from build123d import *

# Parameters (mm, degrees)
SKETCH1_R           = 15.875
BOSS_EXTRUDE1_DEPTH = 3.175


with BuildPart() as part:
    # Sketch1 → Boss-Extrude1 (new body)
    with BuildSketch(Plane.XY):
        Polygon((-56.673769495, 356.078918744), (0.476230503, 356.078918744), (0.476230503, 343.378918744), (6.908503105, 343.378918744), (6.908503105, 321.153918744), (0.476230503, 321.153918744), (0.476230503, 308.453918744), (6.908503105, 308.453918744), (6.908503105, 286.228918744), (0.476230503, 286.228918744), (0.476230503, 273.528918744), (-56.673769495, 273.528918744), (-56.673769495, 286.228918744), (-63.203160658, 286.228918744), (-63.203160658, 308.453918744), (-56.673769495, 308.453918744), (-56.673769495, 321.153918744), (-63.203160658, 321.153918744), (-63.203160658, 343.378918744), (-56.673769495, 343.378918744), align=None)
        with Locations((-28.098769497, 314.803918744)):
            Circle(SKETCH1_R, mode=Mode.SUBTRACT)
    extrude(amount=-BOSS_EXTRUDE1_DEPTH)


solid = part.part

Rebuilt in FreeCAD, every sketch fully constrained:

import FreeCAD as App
import Part
import Sketcher
Q = App.Units.Quantity

doc = App.newDocument("Part")
body = doc.addObject("PartDesign::Body", "Body")

# Sketch on XY plane
sketch1 = body.newObject("Sketcher::SketchObject", "Sketch")
sketch1.AttachmentSupport = (doc.getObject("XY_Plane"), [""])
sketch1.MapMode = "FlatFace"
sketch1.addGeometry([
    Part.LineSegment(App.Vector(0, 356, 0), App.Vector(-57, 356, 0)),  # 0
    Part.LineSegment(App.Vector(-57, 356, 0), App.Vector(-57, 343, 0)),  # 1
    Part.LineSegment(App.Vector(-57, 343, 0), App.Vector(-63, 343, 0)),  # 2
    Part.LineSegment(App.Vector(-63, 343, 0), App.Vector(-63, 321, 0)),  # 3
    Part.LineSegment(App.Vector(-63, 321, 0), App.Vector(-57, 321, 0)),  # 4
    Part.LineSegment(App.Vector(-57, 321, 0), App.Vector(-57, 308, 0)),  # 5
    Part.LineSegment(App.Vector(-57, 308, 0), App.Vector(-63, 308, 0)),  # 6
    Part.LineSegment(App.Vector(-63, 308, 0), App.Vector(-63, 286, 0)),  # 7
    Part.LineSegment(App.Vector(-63, 286, 0), App.Vector(-57, 286, 0)),  # 8
    Part.LineSegment(App.Vector(-57, 286, 0), App.Vector(-57, 274, 0)),  # 9
    Part.LineSegment(App.Vector(-57, 274, 0), App.Vector(0, 274, 0)),  # 10
    Part.LineSegment(App.Vector(0, 274, 0), App.Vector(0, 286, 0)),  # 11
    Part.LineSegment(App.Vector(0, 286, 0), App.Vector(7, 286, 0)),  # 12
    Part.LineSegment(App.Vector(7, 286, 0), App.Vector(7, 308, 0)),  # 13
    Part.LineSegment(App.Vector(7, 308, 0), App.Vector(0, 308, 0)),  # 14
    Part.LineSegment(App.Vector(0, 308, 0), App.Vector(0, 321, 0)),  # 15
    Part.LineSegment(App.Vector(0, 321, 0), App.Vector(7, 321, 0)),  # 16
    Part.LineSegment(App.Vector(7, 321, 0), App.Vector(7, 343, 0)),  # 17
    Part.LineSegment(App.Vector(7, 343, 0), App.Vector(0, 343, 0)),  # 18
    Part.LineSegment(App.Vector(0, 343, 0), App.Vector(0, 356, 0)),  # 19
    Part.Circle(App.Vector(-28, 315, 0), App.Vector(0, 0, 1), 16),  # 20
], False)
sketch1.addConstraint([
    Sketcher.Constraint("Coincident", 0, 2, 1, 1),
    Sketcher.Constraint("Coincident", 1, 2, 2, 1),
    Sketcher.Constraint("Coincident", 2, 2, 3, 1),
    Sketcher.Constraint("Coincident", 3, 2, 4, 1),
    Sketcher.Constraint("Coincident", 4, 2, 5, 1),
    Sketcher.Constraint("Coincident", 5, 2, 6, 1),
    Sketcher.Constraint("Coincident", 6, 2, 7, 1),
    Sketcher.Constraint("Coincident", 7, 2, 8, 1),
    Sketcher.Constraint("Coincident", 8, 2, 9, 1),
    Sketcher.Constraint("Coincident", 9, 2, 10, 1),
    Sketcher.Constraint("Coincident", 10, 2, 11, 1),
    Sketcher.Constraint("Coincident", 11, 2, 12, 1),
    Sketcher.Constraint("Coincident", 12, 2, 13, 1),
    Sketcher.Constraint("Coincident", 13, 2, 14, 1),
    Sketcher.Constraint("Coincident", 14, 2, 15, 1),
    Sketcher.Constraint("Coincident", 15, 2, 16, 1),
    Sketcher.Constraint("Coincident", 16, 2, 17, 1),
    Sketcher.Constraint("Coincident", 17, 2, 18, 1),
    Sketcher.Constraint("Coincident", 18, 2, 19, 1),
    Sketcher.Constraint("Coincident", 19, 2, 0, 1),
    Sketcher.Constraint("Horizontal", 0),
    Sketcher.Constraint("Vertical", 1),
    Sketcher.Constraint("Horizontal", 2),
    Sketcher.Constraint("Vertical", 3),
    Sketcher.Constraint("Horizontal", 4),
    Sketcher.Constraint("Vertical", 5),
    Sketcher.Constraint("Horizontal", 6),
    Sketcher.Constraint("Vertical", 7),
    Sketcher.Constraint("Horizontal", 8),
    Sketcher.Constraint("Vertical", 9),
    Sketcher.Constraint("Horizontal", 10),
    Sketcher.Constraint("Vertical", 11),
    Sketcher.Constraint("Horizontal", 12),
    Sketcher.Constraint("Vertical", 13),
    Sketcher.Constraint("Horizontal", 14),
    Sketcher.Constraint("Vertical", 15),
    Sketcher.Constraint("Horizontal", 16),
    Sketcher.Constraint("Vertical", 17),
    Sketcher.Constraint("Horizontal", 18),
    Sketcher.Constraint("Vertical", 19),
    Sketcher.Constraint("Horizontal", 8, 2, 11, 2),
    Sketcher.Constraint("Horizontal", 6, 2, 13, 2),
    Sketcher.Constraint("Horizontal", 4, 2, 15, 2),
    Sketcher.Constraint("Horizontal", 2, 2, 17, 2),
    Sketcher.Constraint("Vertical", 1, 2, 4, 2),
    Sketcher.Constraint("Vertical", 3, 2, 6, 2),
    Sketcher.Constraint("Vertical", 5, 2, 8, 2),
    Sketcher.Constraint("Vertical", 11, 2, 14, 2),
    Sketcher.Constraint("Vertical", 13, 2, 16, 2),
    Sketcher.Constraint("Vertical", 15, 2, 18, 2),
    Sketcher.Constraint("Equal", 1, 5),
    Sketcher.Constraint("Equal", 3, 7),
    Sketcher.Constraint("Equal", 5, 9),
    Sketcher.Constraint("Diameter", 20, Q("1.25 in")),
    Sketcher.Constraint("DistanceY", 1, 2, 1, 1, Q("0.5 in")),
    Sketcher.Constraint("DistanceX", 0, 2, 0, 1, Q("2.25 in")),
    Sketcher.Constraint("DistanceY", 3, 2, 3, 1, Q("0.875 in")),
    Sketcher.Constraint("DistanceY", 20, 3, 3, 2, Q("0.25 in")),
    Sketcher.Constraint("DistanceX", 0, 2, 20, 3, Q("1.125 in")),
    Sketcher.Constraint("DistanceX", 2, 2, 2, 1, Q("6.529391 mm")),
    Sketcher.Constraint("DistanceX", 12, 1, 12, 2, Q("6.432273 mm")),
    Sketcher.Constraint("DistanceX", 20, 3, -1, 1, Q("28.098769 mm")),
    Sketcher.Constraint("DistanceY", -1, 1, 20, 3, Q("314.803919 mm")),
])
pad1 = body.newObject("PartDesign::Pad", "Pad")
pad1.Profile = sketch1
pad1.Length = Q("0.125 in")
pad1.Reversed = True

doc.recompute()
